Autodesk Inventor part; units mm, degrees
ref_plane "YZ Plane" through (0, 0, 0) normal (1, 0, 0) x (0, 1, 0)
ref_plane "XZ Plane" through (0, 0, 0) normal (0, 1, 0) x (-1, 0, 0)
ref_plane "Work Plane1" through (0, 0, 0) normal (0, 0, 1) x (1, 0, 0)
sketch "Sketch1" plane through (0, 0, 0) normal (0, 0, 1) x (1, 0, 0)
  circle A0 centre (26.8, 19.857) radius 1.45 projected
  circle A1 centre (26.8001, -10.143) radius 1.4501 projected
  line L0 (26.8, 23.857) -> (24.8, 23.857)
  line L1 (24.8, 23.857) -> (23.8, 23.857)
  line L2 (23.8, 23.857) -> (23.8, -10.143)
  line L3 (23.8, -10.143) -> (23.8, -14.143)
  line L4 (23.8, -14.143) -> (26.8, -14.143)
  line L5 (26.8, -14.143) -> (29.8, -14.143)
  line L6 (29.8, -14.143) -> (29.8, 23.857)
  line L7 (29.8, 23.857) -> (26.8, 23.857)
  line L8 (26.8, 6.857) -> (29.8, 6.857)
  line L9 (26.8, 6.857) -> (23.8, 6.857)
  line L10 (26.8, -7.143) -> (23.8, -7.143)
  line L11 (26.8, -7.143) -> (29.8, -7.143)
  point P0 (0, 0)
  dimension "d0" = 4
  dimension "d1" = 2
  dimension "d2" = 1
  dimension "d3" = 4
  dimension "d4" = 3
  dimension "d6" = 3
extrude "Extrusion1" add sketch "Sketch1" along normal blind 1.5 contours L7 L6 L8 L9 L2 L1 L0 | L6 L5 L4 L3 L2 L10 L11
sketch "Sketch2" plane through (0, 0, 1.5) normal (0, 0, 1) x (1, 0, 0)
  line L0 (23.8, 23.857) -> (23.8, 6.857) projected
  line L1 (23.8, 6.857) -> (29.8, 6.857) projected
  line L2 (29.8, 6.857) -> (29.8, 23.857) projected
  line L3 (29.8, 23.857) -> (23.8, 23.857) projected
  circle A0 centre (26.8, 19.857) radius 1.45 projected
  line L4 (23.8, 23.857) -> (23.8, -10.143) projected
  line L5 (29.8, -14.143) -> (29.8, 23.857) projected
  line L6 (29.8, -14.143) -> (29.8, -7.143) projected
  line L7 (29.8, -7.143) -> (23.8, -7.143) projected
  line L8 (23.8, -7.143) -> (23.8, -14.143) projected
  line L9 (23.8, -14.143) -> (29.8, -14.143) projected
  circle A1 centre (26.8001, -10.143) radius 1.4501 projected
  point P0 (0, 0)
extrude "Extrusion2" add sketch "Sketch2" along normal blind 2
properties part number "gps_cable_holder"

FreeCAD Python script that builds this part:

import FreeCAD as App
import Part
import Sketcher
from FreeCAD import Vector
Q = App.Units.Quantity

doc = App.newDocument("Part")
params = doc.addObject("Spreadsheet::Sheet", "Params")
for row, (alias, value) in enumerate([
    ("sketch1_diameter", "2.9 mm"),
    ("sketch1_height", "17 mm"),
    ("pad1_length", "1.5 mm"),
    ("sketch2_diameter", "2.9 mm"),
    ("sketch2_width", "6 mm"),
    ("sketch2_height", "38 mm"),
    ("pad2_length", "2 mm"),
], start=1):
    params.set(f"A{row}", alias)
    params.set(f"B{row}", "=" + value)
    params.setAlias(f"B{row}", alias)

body = doc.addObject("PartDesign::Body", "Body")
body.AllowCompound = True

# Sketch on XY plane
sketch1 = body.newObject("Sketcher::SketchObject", "Sketch")
sketch1.AttachmentSupport = (doc.getObject("XY_Plane"), [""])
sketch1.MapMode = "FlatFace"
sketch1.addGeometry([
    Part.LineSegment(Vector(29.8, 23.9, 0), Vector(23.8, 23.9, 0)),  # 0
    Part.LineSegment(Vector(23.8, 23.9, 0), Vector(23.8, 6.9, 0)),  # 1
    Part.LineSegment(Vector(23.8, 6.9, 0), Vector(29.8, 6.9, 0)),  # 2
    Part.LineSegment(Vector(29.8, 6.9, 0), Vector(29.8, 23.9, 0)),  # 3
    Part.Circle(Vector(26.8, 19.9, 0), Vector(0, 0, 1), 1.4),  # 4
    Part.LineSegment(Vector(29.8, -14.1, 0), Vector(29.8, -7.1, 0)),  # 5
    Part.LineSegment(Vector(29.8, -7.1, 0), Vector(23.8, -7.1, 0)),  # 6
    Part.LineSegment(Vector(23.8, -7.1, 0), Vector(23.8, -14.1, 0)),  # 7
    Part.LineSegment(Vector(23.8, -14.1, 0), Vector(29.8, -14.1, 0)),  # 8
    Part.Circle(Vector(26.8, -10.1, 0), Vector(0, 0, 1), 1.5),  # 9
], False)
sketch1.addConstraint([
    Sketcher.Constraint("Coincident", 0, 2, 1, 1),
    Sketcher.Constraint("Coincident", 1, 2, 2, 1),
    Sketcher.Constraint("Coincident", 2, 2, 3, 1),
    Sketcher.Constraint("Coincident", 3, 2, 0, 1),
    Sketcher.Constraint("Coincident", 5, 2, 6, 1),
    Sketcher.Constraint("Coincident", 6, 2, 7, 1),
    Sketcher.Constraint("Coincident", 7, 2, 8, 1),
    Sketcher.Constraint("Coincident", 8, 2, 5, 1),
    Sketcher.Constraint("Horizontal", 0),
    Sketcher.Constraint("Vertical", 1),
    Sketcher.Constraint("Horizontal", 2),
    Sketcher.Constraint("Vertical", 3),
    Sketcher.Constraint("Vertical", 5),
    Sketcher.Constraint("Horizontal", 6),
    Sketcher.Constraint("Vertical", 7),
    Sketcher.Constraint("Horizontal", 8),
    Sketcher.Constraint("Equal", 4, 9),
    Sketcher.Constraint("Vertical", 4, 3, 9, 3),
    Sketcher.Constraint("Vertical", 3, 2, 5, 2),
    Sketcher.Constraint("Vertical", 1, 2, 6, 2),
    Sketcher.Constraint("DistanceX", 0, 2, 4, 3, Q("3 mm")),
    Sketcher.Constraint("DistanceY", 4, 3, 0, 2, Q("4 mm")),
    Sketcher.Constraint("DistanceX", 4, 3, 2, 2, Q("3 mm")),
    Sketcher.Constraint("DistanceY", 9, 3, 5, 2, Q("3 mm")),
    Sketcher.Constraint("DistanceY", 7, 2, 9, 3, Q("4 mm")),
    Sketcher.Constraint("Diameter", 4, Q("2.9 mm")),
    Sketcher.Constraint("DistanceY", 1, 2, 1, 1, Q("17 mm")),
    Sketcher.Constraint("DistanceY", 9, 3, 4, 3, Q("30 mm")),
    Sketcher.Constraint("DistanceX", -1, 1, 4, 3, Q("26.8 mm")),
    Sketcher.Constraint("DistanceY", -1, 1, 4, 3, Q("19.857 mm")),
])
sketch1.setExpression("Constraints[25]", "Params.sketch1_diameter")
sketch1.setExpression("Constraints[26]", "Params.sketch1_height")
pad1 = body.newObject("PartDesign::Pad", "Pad")
pad1.Profile = sketch1
pad1.setExpression("Length", "Params.pad1_length")

# Sketch on XY plane
sketch2 = body.newObject("Sketcher::SketchObject", "Sketch001")
sketch2.AttachmentSupport = (doc.getObject("XY_Plane"), [""])
sketch2.MapMode = "FlatFace"
sketch2.AttachmentOffset = App.Placement(Vector(0, 0, 1.5), App.Rotation())
sketch2.addGeometry([
    Part.LineSegment(Vector(29.8, 23.9, 0), Vector(23.8, 23.9, 0)),  # 0
    Part.LineSegment(Vector(23.8, 23.9, 0), Vector(23.8, -14.1, 0)),  # 1
    Part.LineSegment(Vector(23.8, -14.1, 0), Vector(29.8, -14.1, 0)),  # 2
    Part.LineSegment(Vector(29.8, -14.1, 0), Vector(29.8, 23.9, 0)),  # 3
    Part.Circle(Vector(26.8, 19.9, 0), Vector(0, 0, 1), 1.4),  # 4
    Part.Circle(Vector(26.8, -10.1, 0), Vector(0, 0, 1), 1.5),  # 5
], False)
sketch2.addConstraint([
    Sketcher.Constraint("Coincident", 0, 2, 1, 1),
    Sketcher.Constraint("Coincident", 1, 2, 2, 1),
    Sketcher.Constraint("Coincident", 2, 2, 3, 1),
    Sketcher.Constraint("Coincident", 3, 2, 0, 1),
    Sketcher.Constraint("Horizontal", 0),
    Sketcher.Constraint("Vertical", 1),
    Sketcher.Constraint("Horizontal", 2),
    Sketcher.Constraint("Vertical", 3),
    Sketcher.Constraint("Equal", 4, 5),
    Sketcher.Constraint("Vertical", 4, 3, 5, 3),
    Sketcher.Constraint("Diameter", 4, Q("2.9 mm")),
    Sketcher.Constraint("DistanceX", 0, 2, 0, 1, Q("6 mm")),
    Sketcher.Constraint("DistanceY", 1, 2, 1, 1, Q("38 mm")),
    Sketcher.Constraint("DistanceY", 5, 3, 4, 3, Q("30 mm")),
    Sketcher.Constraint("DistanceX", 0, 2, 4, 3, Q("3 mm")),
    Sketcher.Constraint("DistanceY", 4, 3, 0, 2, Q("4 mm")),
    Sketcher.Constraint("DistanceX", -1, 1, 4, 3, Q("26.8 mm")),
    Sketcher.Constraint("DistanceY", -1, 1, 4, 3, Q("19.857 mm")),
])
sketch2.setExpression("Constraints[10]", "Params.sketch2_diameter")
sketch2.setExpression("Constraints[11]", "Params.sketch2_width")
sketch2.setExpression("Constraints[12]", "Params.sketch2_height")
pad2 = body.newObject("PartDesign::Pad", "Pad001")
pad2.Profile = sketch2
pad2.setExpression("Length", "Params.pad2_length")

doc.recompute()
